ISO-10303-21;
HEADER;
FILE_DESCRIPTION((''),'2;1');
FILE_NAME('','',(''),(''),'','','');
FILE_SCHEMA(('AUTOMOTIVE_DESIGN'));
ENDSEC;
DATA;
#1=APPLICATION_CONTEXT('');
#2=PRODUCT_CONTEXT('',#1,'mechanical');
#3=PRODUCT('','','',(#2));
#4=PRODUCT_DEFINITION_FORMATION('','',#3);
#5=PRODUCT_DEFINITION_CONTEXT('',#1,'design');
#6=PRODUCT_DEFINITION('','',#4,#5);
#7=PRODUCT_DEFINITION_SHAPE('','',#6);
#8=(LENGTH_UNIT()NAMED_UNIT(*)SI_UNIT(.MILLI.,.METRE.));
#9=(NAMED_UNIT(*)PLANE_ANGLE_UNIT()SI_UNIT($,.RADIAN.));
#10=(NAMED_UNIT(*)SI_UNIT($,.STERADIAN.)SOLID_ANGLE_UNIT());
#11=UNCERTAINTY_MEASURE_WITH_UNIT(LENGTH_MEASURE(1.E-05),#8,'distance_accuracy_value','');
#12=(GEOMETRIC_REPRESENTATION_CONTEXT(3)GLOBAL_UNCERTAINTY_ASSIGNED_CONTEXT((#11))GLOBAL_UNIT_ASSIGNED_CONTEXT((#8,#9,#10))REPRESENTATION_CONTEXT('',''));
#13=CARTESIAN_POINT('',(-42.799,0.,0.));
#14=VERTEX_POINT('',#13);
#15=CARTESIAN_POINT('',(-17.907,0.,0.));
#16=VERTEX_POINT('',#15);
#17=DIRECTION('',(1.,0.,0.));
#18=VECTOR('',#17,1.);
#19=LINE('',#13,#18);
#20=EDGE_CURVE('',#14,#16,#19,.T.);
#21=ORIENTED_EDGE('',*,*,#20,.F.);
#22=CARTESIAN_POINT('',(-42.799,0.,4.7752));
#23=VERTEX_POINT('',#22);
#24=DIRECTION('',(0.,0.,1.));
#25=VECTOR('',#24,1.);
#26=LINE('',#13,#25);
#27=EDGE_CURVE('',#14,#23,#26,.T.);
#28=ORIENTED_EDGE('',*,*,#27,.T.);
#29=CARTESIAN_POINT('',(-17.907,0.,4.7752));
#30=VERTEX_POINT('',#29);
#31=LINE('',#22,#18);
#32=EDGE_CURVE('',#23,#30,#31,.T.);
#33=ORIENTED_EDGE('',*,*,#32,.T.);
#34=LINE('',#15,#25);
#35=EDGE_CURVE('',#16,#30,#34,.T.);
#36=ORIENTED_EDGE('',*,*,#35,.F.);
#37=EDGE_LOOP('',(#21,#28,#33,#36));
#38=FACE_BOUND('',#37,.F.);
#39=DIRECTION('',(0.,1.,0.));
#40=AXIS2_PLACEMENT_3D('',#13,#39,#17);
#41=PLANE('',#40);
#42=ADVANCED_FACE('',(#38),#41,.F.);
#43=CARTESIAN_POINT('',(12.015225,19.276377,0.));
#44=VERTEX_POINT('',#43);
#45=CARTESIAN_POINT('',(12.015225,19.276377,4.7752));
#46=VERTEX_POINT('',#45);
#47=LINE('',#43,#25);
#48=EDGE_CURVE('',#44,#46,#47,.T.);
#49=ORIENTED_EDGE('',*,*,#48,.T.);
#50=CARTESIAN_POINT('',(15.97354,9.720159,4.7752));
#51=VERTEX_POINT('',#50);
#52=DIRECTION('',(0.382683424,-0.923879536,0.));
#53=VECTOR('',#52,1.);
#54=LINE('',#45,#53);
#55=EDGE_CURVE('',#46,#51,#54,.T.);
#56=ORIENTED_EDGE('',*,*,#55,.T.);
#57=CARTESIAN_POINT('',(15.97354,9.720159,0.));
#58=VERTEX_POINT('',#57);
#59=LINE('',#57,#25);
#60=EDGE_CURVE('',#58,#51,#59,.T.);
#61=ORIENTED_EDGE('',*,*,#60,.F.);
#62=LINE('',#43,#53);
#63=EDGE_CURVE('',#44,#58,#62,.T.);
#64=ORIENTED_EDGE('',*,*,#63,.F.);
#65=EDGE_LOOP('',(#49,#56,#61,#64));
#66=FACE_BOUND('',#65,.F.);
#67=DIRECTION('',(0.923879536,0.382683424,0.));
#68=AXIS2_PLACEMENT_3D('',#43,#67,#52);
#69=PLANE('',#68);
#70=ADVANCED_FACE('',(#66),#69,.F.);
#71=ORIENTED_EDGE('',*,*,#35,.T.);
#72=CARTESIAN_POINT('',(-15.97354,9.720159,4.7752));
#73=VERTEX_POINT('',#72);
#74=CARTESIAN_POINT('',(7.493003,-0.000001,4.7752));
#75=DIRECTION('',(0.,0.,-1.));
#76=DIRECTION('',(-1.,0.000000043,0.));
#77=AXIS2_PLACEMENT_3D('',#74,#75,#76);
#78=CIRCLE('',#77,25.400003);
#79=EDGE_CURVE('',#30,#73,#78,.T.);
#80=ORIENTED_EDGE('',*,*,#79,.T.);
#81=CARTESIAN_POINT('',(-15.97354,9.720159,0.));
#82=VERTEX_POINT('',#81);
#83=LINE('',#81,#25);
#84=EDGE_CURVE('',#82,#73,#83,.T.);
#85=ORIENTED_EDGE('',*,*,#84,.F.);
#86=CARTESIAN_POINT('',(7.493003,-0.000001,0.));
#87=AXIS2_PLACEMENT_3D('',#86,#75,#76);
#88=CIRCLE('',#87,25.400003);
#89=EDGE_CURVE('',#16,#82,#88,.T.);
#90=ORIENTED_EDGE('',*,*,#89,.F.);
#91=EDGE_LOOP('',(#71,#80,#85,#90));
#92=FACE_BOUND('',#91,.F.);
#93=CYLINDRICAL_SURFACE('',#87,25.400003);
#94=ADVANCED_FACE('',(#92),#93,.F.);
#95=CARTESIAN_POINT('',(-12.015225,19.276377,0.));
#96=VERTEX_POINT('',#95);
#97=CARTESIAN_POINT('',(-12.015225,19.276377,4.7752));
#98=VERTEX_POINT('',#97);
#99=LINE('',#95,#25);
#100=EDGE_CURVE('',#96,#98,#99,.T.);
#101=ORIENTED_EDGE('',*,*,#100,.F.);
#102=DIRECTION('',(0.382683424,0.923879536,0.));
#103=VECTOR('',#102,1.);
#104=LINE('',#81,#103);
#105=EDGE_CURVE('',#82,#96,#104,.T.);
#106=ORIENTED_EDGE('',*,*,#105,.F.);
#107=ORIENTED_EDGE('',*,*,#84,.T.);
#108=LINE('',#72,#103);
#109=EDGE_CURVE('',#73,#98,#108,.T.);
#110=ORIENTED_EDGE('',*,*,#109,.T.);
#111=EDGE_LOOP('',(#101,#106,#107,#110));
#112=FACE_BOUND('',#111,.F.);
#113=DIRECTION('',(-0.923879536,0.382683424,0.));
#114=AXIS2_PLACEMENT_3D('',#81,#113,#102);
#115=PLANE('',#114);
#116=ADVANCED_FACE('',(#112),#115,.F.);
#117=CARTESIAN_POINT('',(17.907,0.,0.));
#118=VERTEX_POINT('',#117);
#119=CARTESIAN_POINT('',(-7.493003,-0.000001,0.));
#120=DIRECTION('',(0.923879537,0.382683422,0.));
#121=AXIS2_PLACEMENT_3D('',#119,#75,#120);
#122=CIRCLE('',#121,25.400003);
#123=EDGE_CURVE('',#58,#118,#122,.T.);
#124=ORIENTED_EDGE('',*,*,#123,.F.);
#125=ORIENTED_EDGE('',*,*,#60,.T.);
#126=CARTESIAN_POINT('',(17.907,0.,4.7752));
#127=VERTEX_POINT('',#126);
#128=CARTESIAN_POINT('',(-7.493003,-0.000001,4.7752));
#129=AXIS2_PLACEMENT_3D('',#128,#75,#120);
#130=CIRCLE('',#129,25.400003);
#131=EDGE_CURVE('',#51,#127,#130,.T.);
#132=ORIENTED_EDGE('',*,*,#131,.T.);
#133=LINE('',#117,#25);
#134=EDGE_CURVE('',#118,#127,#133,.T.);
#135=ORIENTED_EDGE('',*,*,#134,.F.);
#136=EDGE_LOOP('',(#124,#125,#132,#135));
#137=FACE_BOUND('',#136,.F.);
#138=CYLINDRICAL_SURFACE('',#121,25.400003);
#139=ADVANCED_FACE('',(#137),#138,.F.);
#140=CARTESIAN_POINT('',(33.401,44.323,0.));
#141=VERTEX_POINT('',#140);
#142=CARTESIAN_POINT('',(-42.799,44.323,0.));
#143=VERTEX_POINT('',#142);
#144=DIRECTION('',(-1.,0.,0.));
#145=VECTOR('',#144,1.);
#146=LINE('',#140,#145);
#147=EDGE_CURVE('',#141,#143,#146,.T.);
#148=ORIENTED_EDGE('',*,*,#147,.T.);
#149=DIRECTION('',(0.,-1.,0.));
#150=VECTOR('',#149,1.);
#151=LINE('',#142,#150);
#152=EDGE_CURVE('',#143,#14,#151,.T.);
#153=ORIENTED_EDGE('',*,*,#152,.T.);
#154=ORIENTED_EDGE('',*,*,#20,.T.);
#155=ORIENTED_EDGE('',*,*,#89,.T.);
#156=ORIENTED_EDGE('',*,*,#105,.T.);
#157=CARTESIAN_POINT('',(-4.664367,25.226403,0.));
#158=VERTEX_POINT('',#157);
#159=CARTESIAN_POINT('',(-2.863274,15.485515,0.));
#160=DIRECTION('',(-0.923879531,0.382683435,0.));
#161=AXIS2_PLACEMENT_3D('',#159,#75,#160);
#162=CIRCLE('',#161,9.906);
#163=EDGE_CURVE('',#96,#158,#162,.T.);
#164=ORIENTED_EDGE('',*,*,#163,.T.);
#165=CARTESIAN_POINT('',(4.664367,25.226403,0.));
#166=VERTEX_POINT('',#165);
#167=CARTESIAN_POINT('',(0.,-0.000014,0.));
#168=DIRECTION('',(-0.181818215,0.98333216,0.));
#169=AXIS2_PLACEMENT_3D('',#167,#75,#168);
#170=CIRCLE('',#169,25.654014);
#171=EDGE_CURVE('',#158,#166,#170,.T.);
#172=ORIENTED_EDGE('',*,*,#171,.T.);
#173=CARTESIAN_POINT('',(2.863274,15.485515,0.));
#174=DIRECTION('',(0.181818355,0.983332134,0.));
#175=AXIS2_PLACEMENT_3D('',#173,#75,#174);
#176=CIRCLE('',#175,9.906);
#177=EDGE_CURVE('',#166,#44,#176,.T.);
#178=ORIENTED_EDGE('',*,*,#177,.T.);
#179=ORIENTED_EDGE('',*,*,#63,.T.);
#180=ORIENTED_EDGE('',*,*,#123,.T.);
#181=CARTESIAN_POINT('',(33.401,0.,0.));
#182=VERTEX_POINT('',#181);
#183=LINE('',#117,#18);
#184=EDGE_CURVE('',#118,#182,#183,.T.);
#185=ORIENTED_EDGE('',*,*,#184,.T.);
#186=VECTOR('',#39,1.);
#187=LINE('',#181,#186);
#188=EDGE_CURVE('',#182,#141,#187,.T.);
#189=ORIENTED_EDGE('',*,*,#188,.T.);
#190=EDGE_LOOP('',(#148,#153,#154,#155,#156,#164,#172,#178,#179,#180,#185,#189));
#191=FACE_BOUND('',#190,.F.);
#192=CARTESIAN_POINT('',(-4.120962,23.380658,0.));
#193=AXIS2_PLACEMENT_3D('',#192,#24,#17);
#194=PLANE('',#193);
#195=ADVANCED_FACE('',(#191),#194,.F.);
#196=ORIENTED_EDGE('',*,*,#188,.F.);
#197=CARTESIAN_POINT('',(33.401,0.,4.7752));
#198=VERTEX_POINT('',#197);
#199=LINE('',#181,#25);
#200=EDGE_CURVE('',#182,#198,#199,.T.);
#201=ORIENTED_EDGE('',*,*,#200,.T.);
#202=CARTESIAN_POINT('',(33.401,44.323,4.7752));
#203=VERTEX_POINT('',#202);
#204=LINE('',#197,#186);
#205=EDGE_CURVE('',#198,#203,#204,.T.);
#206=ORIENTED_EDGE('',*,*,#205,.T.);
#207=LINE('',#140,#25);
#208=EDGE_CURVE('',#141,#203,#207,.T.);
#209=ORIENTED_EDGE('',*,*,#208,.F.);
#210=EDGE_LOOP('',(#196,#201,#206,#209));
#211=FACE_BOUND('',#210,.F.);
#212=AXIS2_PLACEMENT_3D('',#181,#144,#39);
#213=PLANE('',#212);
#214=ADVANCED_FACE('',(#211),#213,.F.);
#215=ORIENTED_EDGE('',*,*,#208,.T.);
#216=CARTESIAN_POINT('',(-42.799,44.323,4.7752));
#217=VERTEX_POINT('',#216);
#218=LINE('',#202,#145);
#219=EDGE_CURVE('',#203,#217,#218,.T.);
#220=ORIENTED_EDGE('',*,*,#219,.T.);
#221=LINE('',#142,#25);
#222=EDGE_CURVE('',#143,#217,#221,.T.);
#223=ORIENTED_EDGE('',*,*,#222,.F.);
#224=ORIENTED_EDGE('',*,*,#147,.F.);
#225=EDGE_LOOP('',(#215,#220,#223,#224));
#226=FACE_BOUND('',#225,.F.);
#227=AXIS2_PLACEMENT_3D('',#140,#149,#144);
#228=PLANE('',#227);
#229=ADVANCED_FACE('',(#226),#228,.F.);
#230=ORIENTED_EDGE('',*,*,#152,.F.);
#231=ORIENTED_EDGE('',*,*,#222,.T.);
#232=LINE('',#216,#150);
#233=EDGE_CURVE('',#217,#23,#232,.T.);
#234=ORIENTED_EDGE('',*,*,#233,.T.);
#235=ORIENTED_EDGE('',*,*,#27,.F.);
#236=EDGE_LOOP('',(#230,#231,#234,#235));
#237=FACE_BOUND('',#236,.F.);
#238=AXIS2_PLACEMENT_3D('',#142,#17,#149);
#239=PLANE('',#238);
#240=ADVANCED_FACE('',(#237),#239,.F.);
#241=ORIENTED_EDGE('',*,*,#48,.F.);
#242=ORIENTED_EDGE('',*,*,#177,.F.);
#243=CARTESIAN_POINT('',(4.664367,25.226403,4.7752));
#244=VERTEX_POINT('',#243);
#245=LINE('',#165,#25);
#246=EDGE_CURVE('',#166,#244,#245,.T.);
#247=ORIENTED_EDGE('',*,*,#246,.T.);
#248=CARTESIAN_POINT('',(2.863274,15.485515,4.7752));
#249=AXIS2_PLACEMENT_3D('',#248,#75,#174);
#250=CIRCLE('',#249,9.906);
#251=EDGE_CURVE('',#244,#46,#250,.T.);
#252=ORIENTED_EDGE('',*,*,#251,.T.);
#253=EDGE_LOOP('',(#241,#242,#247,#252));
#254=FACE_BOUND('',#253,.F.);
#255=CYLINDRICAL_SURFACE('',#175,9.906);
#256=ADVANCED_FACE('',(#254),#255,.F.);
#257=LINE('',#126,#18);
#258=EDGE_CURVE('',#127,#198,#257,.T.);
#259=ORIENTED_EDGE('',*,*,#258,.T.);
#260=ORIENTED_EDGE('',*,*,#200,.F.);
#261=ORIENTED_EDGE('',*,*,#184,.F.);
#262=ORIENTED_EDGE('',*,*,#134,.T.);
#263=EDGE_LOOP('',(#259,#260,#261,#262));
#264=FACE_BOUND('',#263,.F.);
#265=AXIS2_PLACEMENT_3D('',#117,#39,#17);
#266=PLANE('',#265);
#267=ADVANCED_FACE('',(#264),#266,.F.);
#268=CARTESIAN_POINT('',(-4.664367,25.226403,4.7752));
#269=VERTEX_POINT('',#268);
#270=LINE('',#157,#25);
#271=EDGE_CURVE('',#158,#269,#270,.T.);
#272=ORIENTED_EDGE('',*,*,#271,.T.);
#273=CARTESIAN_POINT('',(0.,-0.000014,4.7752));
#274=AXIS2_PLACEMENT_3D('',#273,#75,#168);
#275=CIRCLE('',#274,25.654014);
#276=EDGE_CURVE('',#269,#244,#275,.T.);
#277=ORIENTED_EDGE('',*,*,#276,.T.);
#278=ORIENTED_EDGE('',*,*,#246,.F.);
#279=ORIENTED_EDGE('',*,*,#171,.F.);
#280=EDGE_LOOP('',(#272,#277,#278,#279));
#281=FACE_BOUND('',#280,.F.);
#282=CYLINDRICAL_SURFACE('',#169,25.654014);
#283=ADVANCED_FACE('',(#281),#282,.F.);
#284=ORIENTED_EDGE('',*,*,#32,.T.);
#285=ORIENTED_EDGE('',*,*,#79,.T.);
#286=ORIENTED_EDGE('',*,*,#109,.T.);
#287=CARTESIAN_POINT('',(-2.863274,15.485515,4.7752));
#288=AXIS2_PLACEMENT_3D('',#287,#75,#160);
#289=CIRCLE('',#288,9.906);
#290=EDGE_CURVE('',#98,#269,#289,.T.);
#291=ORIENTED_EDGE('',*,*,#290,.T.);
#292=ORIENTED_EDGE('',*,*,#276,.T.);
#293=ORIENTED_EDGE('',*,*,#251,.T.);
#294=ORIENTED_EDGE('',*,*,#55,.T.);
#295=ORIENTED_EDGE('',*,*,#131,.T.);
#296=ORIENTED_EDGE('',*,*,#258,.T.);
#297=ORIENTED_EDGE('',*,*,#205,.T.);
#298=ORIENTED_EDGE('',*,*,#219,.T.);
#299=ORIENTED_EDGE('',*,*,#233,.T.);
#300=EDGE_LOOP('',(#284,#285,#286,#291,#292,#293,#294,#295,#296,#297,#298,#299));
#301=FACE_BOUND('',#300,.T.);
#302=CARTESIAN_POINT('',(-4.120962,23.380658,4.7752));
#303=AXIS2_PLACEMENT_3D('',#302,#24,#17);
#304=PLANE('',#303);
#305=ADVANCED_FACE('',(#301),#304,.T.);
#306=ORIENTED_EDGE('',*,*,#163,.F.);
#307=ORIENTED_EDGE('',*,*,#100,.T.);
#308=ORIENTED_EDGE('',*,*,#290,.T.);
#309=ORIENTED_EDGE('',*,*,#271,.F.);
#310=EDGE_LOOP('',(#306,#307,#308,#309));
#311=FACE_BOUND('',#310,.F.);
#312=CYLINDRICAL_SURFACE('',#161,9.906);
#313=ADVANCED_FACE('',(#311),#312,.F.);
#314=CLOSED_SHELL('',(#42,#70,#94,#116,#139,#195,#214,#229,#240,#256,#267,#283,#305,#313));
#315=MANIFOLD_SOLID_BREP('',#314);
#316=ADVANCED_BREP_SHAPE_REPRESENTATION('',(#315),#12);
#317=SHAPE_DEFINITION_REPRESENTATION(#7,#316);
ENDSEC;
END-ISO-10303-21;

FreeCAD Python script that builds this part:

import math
import FreeCAD as App
import Part
import Sketcher
from FreeCAD import Vector
Q = App.Units.Quantity

doc = App.newDocument("Part")
body = doc.addObject("PartDesign::Body", "Body")

sketch1 = doc.addObject("Sketcher::SketchObject", "Sketch")
body.addObject(sketch1)
sketch1.AttachmentSupport = (doc.XY_Plane, [""])
sketch1.MapMode = "FlatFace"
sketch1.addGeometry(Part.LineSegment(Vector(33.401, 44.323, 0), Vector(-42.799, 44.323, 0)), False)
sketch1.addGeometry(Part.LineSegment(Vector(-42.799, 44.323, 0), Vector(-42.799, 0, 0)), False)
sketch1.addGeometry(Part.LineSegment(Vector(-42.799, 0, 0), Vector(-17.907, 0, 0)), False)
sketch1.addGeometry(Part.ArcOfCircle(Part.Circle(Vector(7.493003, -0.000001, 0), Vector(0, 0, 1), 25.400003), math.radians(157.500001), math.radians(179.999998)), False)
sketch1.addGeometry(Part.LineSegment(Vector(-15.97354, 9.720159, 0), Vector(-12.015225, 19.276377, 0)), False)
sketch1.addGeometry(Part.ArcOfCircle(Part.Circle(Vector(-2.863274, 15.485515, 0), Vector(0, 0, 1), 9.906), math.radians(100.475692), math.radians(157.5)), False)
sketch1.addGeometry(Part.ArcOfCircle(Part.Circle(Vector(0, -0.000014, 0), Vector(0, 0, 1), 25.654014), math.radians(79.524316), math.radians(100.475684)), False)
sketch1.addGeometry(Part.ArcOfCircle(Part.Circle(Vector(2.863274, 15.485515, 0), Vector(0, 0, 1), 9.906), math.radians(22.5), math.radians(79.524308)), False)
sketch1.addGeometry(Part.LineSegment(Vector(12.015225, 19.276377, 0), Vector(15.97354, 9.720159, 0)), False)
sketch1.addGeometry(Part.ArcOfCircle(Part.Circle(Vector(-7.493003, -0.000001, 0), Vector(0, 0, 1), 25.400003), math.radians(0.000002), math.radians(22.499999)), False)
sketch1.addGeometry(Part.LineSegment(Vector(17.907, 0, 0), Vector(33.401, 0, 0)), False)
sketch1.addGeometry(Part.LineSegment(Vector(33.401, 0, 0), Vector(33.401, 44.323, 0)), False)
sketch1.addConstraint(Sketcher.Constraint("Coincident", 0, 2, 1, 1))
sketch1.addConstraint(Sketcher.Constraint("Coincident", 1, 2, 2, 1))
sketch1.addConstraint(Sketcher.Constraint("Coincident", 2, 2, 3, 2))
sketch1.addConstraint(Sketcher.Constraint("Tangent", 3, 1, 4, 1))
sketch1.addConstraint(Sketcher.Constraint("Tangent", 4, 2, 5, 2))
sketch1.addConstraint(Sketcher.Constraint("Tangent", 5, 1, 6, 2))
sketch1.addConstraint(Sketcher.Constraint("Tangent", 6, 1, 7, 2))
sketch1.addConstraint(Sketcher.Constraint("Tangent", 7, 1, 8, 1))
sketch1.addConstraint(Sketcher.Constraint("Tangent", 8, 2, 9, 2))
sketch1.addConstraint(Sketcher.Constraint("Coincident", 9, 1, 10, 1))
sketch1.addConstraint(Sketcher.Constraint("Coincident", 10, 2, 11, 1))
sketch1.addConstraint(Sketcher.Constraint("Coincident", 11, 2, 0, 1))
sketch1.addConstraint(Sketcher.Constraint("Horizontal", 0))
sketch1.addConstraint(Sketcher.Constraint("Vertical", 1))
sketch1.addConstraint(Sketcher.Constraint("Horizontal", 2))
sketch1.addConstraint(Sketcher.Constraint("Horizontal", 10))
sketch1.addConstraint(Sketcher.Constraint("Vertical", 11))
sketch1.addConstraint(Sketcher.Constraint("Equal", 5, 7))
sketch1.addConstraint(Sketcher.Constraint("Equal", 3, 9))
sketch1.addConstraint(Sketcher.Constraint("Symmetric", 3, 3, 9, 3, -1, 1))
sketch1.addConstraint(Sketcher.Constraint("Symmetric", 5, 3, 7, 3, -2))
sketch1.addConstraint(Sketcher.Constraint("PointOnObject", 3, 3, -1))
sketch1.addConstraint(Sketcher.Constraint("PointOnObject", 1, 2, -1))
sketch1.addConstraint(Sketcher.Constraint("PointOnObject", 9, 1, -1))
sketch1.addConstraint(Sketcher.Constraint("Radius", 3, Q("1.0000001 in")))
sketch1.addConstraint(Sketcher.Constraint("DistanceX", 0, 2, 0, 1, Q("3 in")))
sketch1.addConstraint(Sketcher.Constraint("Radius", 5, Q("0.39 in")))
sketch1.addConstraint(Sketcher.Constraint("DistanceX", 2, 1, 2, 2, Q("0.98 in")))
sketch1.addConstraint(Sketcher.Constraint("DistanceX", 10, 1, 10, 2, Q("0.61 in")))
sketch1.addConstraint(Sketcher.Constraint("Angle", 4, Q("67.500001 deg")))
sketch1.addConstraint(Sketcher.Constraint("DistanceY", 1, 2, 1, 1, Q("1.745 in")))
sketch1.addConstraint(Sketcher.Constraint("Radius", 6, Q("25.654014 mm")))
sketch1.addConstraint(Sketcher.Constraint("DistanceX", 4, 2, 7, 3, Q("14.878499 mm")))
pad1 = doc.addObject("PartDesign::Pad", "Pad")
body.addObject(pad1)
pad1.Profile = sketch1
pad1.Length = Q("0.188 in")

doc.recompute()
